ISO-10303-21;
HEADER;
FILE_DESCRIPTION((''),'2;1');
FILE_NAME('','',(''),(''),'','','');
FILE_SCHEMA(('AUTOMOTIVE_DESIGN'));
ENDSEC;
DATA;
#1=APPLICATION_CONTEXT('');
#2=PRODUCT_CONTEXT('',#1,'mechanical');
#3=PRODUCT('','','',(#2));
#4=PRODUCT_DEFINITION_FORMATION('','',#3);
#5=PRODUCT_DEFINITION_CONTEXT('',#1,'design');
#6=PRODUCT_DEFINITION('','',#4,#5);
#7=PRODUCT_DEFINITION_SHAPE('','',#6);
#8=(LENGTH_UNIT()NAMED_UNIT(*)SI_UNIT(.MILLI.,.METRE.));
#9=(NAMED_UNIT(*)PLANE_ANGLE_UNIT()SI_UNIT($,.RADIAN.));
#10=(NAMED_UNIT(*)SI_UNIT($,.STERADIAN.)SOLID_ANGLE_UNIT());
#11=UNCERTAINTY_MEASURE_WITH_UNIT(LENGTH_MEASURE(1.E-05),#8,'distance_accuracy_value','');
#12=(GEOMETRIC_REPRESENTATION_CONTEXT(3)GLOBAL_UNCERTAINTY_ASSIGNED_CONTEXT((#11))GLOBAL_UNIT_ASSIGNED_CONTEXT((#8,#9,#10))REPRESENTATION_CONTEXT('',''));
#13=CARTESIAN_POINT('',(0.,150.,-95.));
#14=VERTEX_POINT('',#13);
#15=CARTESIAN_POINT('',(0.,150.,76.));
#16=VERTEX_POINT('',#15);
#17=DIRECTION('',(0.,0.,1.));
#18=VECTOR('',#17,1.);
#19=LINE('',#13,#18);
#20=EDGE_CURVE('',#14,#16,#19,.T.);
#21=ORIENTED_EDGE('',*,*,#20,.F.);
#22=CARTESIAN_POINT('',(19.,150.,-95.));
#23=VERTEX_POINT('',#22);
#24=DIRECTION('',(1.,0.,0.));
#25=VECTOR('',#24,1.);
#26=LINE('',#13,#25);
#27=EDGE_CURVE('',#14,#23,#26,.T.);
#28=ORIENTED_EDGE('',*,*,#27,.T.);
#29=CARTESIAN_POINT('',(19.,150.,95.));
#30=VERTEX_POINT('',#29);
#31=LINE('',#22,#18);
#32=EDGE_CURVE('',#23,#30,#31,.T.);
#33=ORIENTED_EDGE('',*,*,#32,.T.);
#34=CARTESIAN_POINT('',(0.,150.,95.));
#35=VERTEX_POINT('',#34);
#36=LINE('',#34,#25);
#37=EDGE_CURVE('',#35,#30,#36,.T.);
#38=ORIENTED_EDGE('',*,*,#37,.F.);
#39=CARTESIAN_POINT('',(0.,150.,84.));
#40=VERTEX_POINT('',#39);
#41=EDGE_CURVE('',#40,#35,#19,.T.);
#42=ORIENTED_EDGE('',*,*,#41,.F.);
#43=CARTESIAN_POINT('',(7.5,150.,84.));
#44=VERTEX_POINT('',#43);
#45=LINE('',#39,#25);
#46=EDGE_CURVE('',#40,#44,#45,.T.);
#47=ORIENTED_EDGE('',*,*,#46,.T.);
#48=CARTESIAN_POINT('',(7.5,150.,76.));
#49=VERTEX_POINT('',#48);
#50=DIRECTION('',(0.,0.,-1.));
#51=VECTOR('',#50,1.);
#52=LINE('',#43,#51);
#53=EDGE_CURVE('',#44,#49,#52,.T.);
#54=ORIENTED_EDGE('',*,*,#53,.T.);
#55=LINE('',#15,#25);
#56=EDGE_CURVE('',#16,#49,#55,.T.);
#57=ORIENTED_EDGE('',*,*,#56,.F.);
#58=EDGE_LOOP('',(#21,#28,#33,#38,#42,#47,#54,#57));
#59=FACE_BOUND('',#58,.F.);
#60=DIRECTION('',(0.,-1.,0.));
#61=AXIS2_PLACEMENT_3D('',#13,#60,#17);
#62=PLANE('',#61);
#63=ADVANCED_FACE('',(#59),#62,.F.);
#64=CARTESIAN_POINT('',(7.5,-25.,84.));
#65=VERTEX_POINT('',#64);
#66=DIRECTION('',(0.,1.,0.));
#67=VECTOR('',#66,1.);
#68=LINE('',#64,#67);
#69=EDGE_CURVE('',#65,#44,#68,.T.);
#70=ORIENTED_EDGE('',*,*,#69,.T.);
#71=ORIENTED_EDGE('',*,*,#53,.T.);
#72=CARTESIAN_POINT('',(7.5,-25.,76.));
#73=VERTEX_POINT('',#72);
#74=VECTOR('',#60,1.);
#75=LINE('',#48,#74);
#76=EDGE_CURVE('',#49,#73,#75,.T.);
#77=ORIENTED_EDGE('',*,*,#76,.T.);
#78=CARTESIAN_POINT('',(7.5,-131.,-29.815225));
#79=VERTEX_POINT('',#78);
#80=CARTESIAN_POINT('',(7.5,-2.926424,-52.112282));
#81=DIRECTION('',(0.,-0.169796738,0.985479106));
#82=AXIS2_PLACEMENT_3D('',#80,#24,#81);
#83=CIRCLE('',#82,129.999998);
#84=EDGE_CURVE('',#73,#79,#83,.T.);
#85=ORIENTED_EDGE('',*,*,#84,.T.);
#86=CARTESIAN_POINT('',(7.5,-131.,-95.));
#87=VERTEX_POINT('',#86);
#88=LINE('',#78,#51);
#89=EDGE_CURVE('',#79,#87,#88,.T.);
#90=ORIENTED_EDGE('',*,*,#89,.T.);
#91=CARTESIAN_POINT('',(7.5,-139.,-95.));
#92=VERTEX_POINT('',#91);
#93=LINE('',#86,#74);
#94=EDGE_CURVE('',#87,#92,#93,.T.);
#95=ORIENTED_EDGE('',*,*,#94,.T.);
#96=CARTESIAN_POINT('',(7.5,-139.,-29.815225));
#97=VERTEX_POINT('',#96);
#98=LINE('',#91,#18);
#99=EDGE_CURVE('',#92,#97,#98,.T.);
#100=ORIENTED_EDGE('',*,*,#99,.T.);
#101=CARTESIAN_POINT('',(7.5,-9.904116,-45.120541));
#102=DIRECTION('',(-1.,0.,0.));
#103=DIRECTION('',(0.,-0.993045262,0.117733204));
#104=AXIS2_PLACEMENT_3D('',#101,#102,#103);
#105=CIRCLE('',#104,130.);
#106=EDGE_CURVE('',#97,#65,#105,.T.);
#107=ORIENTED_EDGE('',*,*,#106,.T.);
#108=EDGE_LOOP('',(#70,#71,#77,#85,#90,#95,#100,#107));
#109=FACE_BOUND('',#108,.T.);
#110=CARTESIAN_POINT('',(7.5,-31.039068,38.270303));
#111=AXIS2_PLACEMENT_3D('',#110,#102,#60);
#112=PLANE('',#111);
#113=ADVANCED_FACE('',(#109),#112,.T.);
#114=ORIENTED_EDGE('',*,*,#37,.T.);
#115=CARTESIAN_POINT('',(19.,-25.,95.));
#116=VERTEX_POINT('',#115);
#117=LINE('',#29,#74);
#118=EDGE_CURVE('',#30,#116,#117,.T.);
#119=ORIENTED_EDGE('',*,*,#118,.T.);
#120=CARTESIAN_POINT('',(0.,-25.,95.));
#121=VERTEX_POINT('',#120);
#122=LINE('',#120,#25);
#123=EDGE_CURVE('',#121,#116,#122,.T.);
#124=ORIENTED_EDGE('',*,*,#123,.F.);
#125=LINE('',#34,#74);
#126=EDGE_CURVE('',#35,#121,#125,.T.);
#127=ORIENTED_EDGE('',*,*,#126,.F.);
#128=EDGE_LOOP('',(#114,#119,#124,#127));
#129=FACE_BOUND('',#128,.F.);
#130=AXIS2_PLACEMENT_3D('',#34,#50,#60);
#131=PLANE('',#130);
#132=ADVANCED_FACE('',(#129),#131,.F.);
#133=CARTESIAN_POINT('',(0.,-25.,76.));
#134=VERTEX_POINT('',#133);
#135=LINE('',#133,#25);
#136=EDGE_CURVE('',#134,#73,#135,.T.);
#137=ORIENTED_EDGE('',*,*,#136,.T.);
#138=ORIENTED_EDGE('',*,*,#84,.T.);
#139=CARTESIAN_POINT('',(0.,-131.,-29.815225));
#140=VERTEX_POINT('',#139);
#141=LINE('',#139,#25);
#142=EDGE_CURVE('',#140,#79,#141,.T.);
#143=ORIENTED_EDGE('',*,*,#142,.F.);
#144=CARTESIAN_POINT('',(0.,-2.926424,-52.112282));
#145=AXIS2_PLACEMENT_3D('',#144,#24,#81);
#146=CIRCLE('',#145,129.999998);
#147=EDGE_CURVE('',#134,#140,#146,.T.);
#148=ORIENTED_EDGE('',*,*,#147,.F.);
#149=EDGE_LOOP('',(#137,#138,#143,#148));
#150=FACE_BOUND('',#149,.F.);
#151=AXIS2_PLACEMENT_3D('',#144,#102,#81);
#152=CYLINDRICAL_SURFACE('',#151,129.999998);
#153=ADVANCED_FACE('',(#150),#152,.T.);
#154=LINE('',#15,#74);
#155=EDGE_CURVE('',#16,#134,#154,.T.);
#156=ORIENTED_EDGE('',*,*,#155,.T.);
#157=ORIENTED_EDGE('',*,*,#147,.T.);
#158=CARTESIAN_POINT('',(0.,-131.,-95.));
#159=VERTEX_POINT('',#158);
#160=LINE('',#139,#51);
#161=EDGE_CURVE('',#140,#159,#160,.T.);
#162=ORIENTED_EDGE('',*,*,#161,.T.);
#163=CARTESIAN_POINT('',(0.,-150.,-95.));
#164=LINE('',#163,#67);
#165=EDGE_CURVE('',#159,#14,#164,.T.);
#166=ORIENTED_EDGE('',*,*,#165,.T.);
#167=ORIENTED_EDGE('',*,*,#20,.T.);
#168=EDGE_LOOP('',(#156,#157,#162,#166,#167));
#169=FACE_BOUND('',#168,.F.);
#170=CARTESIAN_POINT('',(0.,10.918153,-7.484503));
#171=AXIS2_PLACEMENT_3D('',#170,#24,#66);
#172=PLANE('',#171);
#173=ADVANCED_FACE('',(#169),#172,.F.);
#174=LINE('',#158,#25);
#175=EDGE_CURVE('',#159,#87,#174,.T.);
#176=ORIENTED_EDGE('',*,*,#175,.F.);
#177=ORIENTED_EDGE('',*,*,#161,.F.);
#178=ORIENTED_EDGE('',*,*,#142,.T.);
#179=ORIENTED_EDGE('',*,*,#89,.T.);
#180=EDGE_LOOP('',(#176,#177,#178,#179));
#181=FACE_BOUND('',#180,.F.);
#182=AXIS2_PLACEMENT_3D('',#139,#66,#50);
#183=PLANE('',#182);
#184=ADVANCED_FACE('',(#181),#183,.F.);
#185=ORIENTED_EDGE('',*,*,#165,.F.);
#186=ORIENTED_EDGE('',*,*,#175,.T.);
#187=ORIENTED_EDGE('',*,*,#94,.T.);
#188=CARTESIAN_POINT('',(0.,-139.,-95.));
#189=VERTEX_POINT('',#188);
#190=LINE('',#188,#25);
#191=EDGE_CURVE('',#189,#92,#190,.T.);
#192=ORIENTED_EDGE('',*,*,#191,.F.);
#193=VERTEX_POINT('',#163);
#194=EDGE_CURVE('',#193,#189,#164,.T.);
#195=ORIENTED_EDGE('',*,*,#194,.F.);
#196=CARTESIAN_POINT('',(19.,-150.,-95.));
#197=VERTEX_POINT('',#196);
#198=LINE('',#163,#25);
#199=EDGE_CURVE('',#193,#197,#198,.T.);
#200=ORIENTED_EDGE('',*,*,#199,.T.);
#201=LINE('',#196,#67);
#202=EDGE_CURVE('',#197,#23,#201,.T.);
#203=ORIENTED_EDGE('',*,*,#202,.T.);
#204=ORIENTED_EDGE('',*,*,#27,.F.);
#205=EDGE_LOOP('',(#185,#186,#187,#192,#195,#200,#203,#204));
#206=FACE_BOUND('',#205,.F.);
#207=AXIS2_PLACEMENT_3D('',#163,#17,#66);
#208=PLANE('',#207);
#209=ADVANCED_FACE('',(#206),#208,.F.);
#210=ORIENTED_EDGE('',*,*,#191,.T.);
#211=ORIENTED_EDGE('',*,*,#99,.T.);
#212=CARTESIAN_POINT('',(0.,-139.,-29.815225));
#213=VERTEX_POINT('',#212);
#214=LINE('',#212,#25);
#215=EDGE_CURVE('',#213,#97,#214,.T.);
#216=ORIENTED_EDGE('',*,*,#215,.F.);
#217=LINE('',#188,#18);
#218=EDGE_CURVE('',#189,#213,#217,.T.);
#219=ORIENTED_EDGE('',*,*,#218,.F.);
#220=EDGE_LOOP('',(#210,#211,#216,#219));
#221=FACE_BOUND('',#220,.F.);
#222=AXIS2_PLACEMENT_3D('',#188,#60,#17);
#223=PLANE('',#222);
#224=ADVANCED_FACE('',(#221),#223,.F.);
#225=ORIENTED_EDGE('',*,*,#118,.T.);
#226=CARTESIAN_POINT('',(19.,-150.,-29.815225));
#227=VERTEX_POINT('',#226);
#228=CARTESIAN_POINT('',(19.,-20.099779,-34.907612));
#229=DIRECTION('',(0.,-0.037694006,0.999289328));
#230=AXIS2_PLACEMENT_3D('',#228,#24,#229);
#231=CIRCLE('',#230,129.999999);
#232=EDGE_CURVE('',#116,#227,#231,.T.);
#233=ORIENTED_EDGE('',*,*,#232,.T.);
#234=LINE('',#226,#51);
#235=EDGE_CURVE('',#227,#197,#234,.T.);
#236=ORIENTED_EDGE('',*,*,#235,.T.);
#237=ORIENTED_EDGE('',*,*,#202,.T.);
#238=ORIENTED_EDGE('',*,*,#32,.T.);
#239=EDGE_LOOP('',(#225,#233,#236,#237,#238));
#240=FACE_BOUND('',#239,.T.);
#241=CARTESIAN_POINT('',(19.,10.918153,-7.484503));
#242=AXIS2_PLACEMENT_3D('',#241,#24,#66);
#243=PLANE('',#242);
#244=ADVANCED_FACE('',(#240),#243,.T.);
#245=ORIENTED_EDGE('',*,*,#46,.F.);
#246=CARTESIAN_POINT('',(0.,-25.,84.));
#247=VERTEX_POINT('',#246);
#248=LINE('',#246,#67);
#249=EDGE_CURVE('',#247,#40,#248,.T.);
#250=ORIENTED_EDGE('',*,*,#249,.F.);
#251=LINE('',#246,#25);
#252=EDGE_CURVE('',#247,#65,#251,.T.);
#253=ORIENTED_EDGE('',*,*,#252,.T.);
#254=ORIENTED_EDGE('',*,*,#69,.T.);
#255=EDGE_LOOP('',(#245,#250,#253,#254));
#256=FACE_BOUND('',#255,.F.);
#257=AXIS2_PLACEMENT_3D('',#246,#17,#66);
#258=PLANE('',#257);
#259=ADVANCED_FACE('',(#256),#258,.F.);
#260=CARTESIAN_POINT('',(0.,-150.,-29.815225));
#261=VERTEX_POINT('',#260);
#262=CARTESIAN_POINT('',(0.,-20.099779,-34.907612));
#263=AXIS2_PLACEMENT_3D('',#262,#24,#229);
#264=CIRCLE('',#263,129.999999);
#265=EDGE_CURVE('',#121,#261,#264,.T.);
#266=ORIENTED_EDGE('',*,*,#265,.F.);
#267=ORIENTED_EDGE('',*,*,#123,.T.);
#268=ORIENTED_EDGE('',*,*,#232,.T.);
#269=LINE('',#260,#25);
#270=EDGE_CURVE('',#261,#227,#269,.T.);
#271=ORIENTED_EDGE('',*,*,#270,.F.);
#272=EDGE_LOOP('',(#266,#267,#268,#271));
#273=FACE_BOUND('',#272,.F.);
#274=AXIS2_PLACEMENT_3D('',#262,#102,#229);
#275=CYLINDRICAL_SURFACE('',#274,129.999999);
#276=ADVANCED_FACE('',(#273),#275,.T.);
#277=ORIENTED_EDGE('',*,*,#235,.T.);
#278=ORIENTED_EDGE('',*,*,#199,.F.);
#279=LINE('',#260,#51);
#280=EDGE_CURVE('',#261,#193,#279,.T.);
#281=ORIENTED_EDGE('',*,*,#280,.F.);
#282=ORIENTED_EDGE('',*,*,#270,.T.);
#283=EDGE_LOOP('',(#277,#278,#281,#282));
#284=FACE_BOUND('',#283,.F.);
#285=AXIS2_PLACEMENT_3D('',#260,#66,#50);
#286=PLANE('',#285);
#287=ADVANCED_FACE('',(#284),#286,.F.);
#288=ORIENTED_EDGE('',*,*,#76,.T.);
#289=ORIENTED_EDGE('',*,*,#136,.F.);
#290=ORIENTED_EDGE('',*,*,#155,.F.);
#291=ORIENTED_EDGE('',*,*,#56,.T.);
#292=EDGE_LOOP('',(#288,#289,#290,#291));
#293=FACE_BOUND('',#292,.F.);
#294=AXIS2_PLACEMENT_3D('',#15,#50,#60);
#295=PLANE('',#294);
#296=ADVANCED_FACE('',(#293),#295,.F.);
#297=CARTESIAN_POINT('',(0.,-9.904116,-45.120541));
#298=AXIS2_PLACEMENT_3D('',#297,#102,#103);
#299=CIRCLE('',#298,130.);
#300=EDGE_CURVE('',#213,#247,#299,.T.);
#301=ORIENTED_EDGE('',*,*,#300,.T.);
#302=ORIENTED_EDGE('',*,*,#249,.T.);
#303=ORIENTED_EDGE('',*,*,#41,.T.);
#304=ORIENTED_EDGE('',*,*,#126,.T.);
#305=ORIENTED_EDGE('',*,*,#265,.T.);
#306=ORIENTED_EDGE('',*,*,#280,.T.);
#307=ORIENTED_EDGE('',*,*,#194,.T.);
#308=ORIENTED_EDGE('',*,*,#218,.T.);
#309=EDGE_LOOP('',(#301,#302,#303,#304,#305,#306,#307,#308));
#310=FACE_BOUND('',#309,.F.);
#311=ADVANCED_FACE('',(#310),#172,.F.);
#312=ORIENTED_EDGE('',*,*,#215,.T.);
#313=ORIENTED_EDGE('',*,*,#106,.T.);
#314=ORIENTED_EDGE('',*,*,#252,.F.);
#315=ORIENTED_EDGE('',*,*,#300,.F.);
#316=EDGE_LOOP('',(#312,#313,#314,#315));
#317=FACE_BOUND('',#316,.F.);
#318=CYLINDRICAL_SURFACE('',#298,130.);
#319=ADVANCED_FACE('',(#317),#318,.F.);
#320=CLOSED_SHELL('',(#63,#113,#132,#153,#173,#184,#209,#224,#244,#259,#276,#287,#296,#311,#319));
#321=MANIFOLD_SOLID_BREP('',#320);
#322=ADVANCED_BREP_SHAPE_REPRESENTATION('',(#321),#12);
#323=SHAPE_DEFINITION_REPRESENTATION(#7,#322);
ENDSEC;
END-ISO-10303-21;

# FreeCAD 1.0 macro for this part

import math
import FreeCAD as App
import Part
import Sketcher
Q = App.Units.Quantity

doc = App.newDocument("Part")
body = doc.addObject("PartDesign::Body", "Body")

# Sketch on YZ plane
sketch1 = body.newObject("Sketcher::SketchObject", "Sketch")
sketch1.AttachmentSupport = (doc.getObject("YZ_Plane"), [""])
sketch1.MapMode = "FlatFace"
sketch1.addGeometry([
    Part.LineSegment(App.Vector(150, 95, 0), App.Vector(-25, 95, 0)),  # 0
    Part.ArcOfCircle(Part.Circle(App.Vector(-20, -35, 0), App.Vector(0, 0, 1), 130), math.radians(92), math.radians(178)),  # 1
    Part.LineSegment(App.Vector(-150, -30, 0), App.Vector(-150, -95, 0)),  # 2
    Part.LineSegment(App.Vector(-150, -95, 0), App.Vector(150, -95, 0)),  # 3
    Part.LineSegment(App.Vector(150, -95, 0), App.Vector(150, 95, 0)),  # 4
], False)
sketch1.addConstraint([
    Sketcher.Constraint("Coincident", 0, 2, 1, 1),
    Sketcher.Constraint("Coincident", 1, 2, 2, 1),
    Sketcher.Constraint("Coincident", 2, 2, 3, 1),
    Sketcher.Constraint("Coincident", 3, 2, 4, 1),
    Sketcher.Constraint("Coincident", 4, 2, 0, 1),
    Sketcher.Constraint("Horizontal", 0),
    Sketcher.Constraint("Vertical", 2),
    Sketcher.Constraint("Horizontal", 3),
    Sketcher.Constraint("Vertical", 4),
    Sketcher.Constraint("Symmetric", 2, 2, 4, 2, -1, 1),
    Sketcher.Constraint("Radius", 1, Q("129.999999 mm")),
    Sketcher.Constraint("DistanceX", 0, 2, 0, 1, Q("175 mm")),
    Sketcher.Constraint("DistanceX", 3, 1, 3, 2, Q("300 mm")),
    Sketcher.Constraint("DistanceY", 4, 1, 4, 2, Q("190 mm")),
    Sketcher.Constraint("DistanceY", 2, 2, 2, 1, Q("65.184775 mm")),
])
pad1 = body.newObject("PartDesign::Pad", "Pad")
pad1.Profile = sketch1
pad1.Length = 19

# Sketch on YZ plane
sketch2 = body.newObject("Sketcher::SketchObject", "Sketch001")
sketch2.AttachmentSupport = (doc.getObject("YZ_Plane"), [""])
sketch2.MapMode = "FlatFace"
sketch2.addGeometry([
    Part.LineSegment(App.Vector(-25, 84, 0), App.Vector(150, 84, 0)),  # 0
    Part.LineSegment(App.Vector(150, 84, 0), App.Vector(150, 76, 0)),  # 1
    Part.LineSegment(App.Vector(150, 76, 0), App.Vector(-25, 76, 0)),  # 2
    Part.ArcOfCircle(Part.Circle(App.Vector(-3, -52, 0), App.Vector(0, 0, 1), 130), math.radians(100), math.radians(170)),  # 3
    Part.LineSegment(App.Vector(-131, -30, 0), App.Vector(-131, -95, 0)),  # 4
    Part.LineSegment(App.Vector(-131, -95, 0), App.Vector(-139, -95, 0)),  # 5
    Part.LineSegment(App.Vector(-139, -95, 0), App.Vector(-139, -30, 0)),  # 6
    Part.ArcOfCircle(Part.Circle(App.Vector(-10, -45, 0), App.Vector(0, 0, 1), 130), math.radians(97), math.radians(173)),  # 7
], False)
sketch2.addConstraint([
    Sketcher.Constraint("Coincident", 0, 2, 1, 1),
    Sketcher.Constraint("Coincident", 1, 2, 2, 1),
    Sketcher.Constraint("Coincident", 2, 2, 3, 1),
    Sketcher.Constraint("Coincident", 3, 2, 4, 1),
    Sketcher.Constraint("Coincident", 4, 2, 5, 1),
    Sketcher.Constraint("Coincident", 5, 2, 6, 1),
    Sketcher.Constraint("Coincident", 6, 2, 7, 2),
    Sketcher.Constraint("Coincident", 7, 1, 0, 1),
    Sketcher.Constraint("Horizontal", 0),
    Sketcher.Constraint("Vertical", 1),
    Sketcher.Constraint("Horizontal", 2),
    Sketcher.Constraint("Vertical", 4),
    Sketcher.Constraint("Horizontal", 5),
    Sketcher.Constraint("Vertical", 6),
    Sketcher.Constraint("Equal", 3, 7),
    Sketcher.Constraint("Horizontal", 3, 2, 6, 2),
    Sketcher.Constraint("Vertical", 2, 2, 7, 1),
    Sketcher.Constraint("Equal", 5, 1),
    Sketcher.Constraint("Radius", 3, Q("129.999998 mm")),
    Sketcher.Constraint("DistanceX", 0, 1, 0, 2, Q("175 mm")),
    Sketcher.Constraint("DistanceX", 5, 2, 5, 1, Q("8 mm")),
    Sketcher.Constraint("DistanceX", -1, 1, 0, 2, Q("150 mm")),
    Sketcher.Constraint("DistanceY", -1, 1, 0, 2, Q("84 mm")),
    Sketcher.Constraint("DistanceX", 3, 2, -1, 1, Q("131 mm")),
    Sketcher.Constraint("DistanceY", 4, 2, -1, 1, Q("95 mm")),
    Sketcher.Constraint("DistanceY", 4, 2, 4, 1, Q("65.184775 mm")),
])
pocket1 = body.newObject("PartDesign::Pocket", "Pocket")
pocket1.Profile = sketch2
pocket1.Length = 7.5
pocket1.Reversed = True

doc.recompute()
